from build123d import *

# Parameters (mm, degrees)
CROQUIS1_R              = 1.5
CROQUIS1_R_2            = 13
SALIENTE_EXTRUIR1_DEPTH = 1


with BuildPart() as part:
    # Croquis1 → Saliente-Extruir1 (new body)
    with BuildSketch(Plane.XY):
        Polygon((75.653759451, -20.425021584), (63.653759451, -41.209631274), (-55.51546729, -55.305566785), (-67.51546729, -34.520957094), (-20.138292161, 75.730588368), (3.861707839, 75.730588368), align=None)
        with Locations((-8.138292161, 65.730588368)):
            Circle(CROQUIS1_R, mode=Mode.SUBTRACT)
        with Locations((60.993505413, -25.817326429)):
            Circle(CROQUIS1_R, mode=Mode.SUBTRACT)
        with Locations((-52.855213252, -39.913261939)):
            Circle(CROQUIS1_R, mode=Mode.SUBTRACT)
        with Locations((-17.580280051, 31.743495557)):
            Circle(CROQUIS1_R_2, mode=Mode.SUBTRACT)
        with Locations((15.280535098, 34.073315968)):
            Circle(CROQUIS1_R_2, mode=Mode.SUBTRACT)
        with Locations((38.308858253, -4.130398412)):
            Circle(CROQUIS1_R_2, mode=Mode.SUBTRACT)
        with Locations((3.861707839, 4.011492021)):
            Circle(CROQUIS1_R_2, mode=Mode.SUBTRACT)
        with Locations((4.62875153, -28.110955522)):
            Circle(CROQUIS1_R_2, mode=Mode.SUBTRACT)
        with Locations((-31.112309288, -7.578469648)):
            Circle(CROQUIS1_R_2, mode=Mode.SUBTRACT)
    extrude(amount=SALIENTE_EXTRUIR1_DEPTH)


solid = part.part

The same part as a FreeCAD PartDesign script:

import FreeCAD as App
import Part
import Sketcher
from FreeCAD import Vector
Q = App.Units.Quantity

doc = App.newDocument("Part")
body = doc.addObject("PartDesign::Body", "Body")

sketch1 = body.newObject("Sketcher::SketchObject", "Sketch")
sketch1.AttachmentSupport = (doc.getObject("XY_Plane"), [""])
sketch1.MapMode = "FlatFace"
sketch1.addGeometry([
    Part.LineSegment(Vector(63.7, -41.2, 0), Vector(75.7, -20.4, 0)),
    Part.LineSegment(Vector(75.7, -20.4, 0), Vector(3.9, 75.7, 0)),
    Part.LineSegment(Vector(3.9, 75.7, 0), Vector(-20.1, 75.7, 0)),
    Part.LineSegment(Vector(-20.1, 75.7, 0), Vector(-67.5, -34.5, 0)),
    Part.LineSegment(Vector(-67.5, -34.5, 0), Vector(-55.5, -55.3, 0)),
    Part.LineSegment(Vector(-55.5, -55.3, 0), Vector(63.7, -41.2, 0)),
    Part.Circle(Vector(61, -25.8, 0), Vector(0, 0, 1), 1.5),
    Part.Circle(Vector(4.6, -28.1, 0), Vector(0, 0, 1), 13),
    Part.Circle(Vector(38.3, -4.1, 0), Vector(0, 0, 1), 13),
    Part.Circle(Vector(-52.9, -39.9, 0), Vector(0, 0, 1), 1.5),
    Part.Circle(Vector(3.9, 4, 0), Vector(0, 0, 1), 13),
    Part.Circle(Vector(-31.1, -7.6, 0), Vector(0, 0, 1), 13),
    Part.Circle(Vector(15.3, 34.1, 0), Vector(0, 0, 1), 13),
    Part.Circle(Vector(-17.6, 31.7, 0), Vector(0, 0, 1), 13),
    Part.Circle(Vector(-8.1, 65.7, 0), Vector(0, 0, 1), 1.5),
], False)
sketch1.addConstraint([
    Sketcher.Constraint("Coincident", 0, 2, 1, 1),
    Sketcher.Constraint("Coincident", 1, 2, 2, 1),
    Sketcher.Constraint("Coincident", 2, 2, 3, 1),
    Sketcher.Constraint("Coincident", 3, 2, 4, 1),
    Sketcher.Constraint("Coincident", 4, 2, 5, 1),
    Sketcher.Constraint("Coincident", 5, 2, 0, 1),
    Sketcher.Constraint("Horizontal", 2),
    Sketcher.Constraint("Equal", 7, 8),
    Sketcher.Constraint("Equal", 6, 9),
    Sketcher.Constraint("Equal", 8, 10),
    Sketcher.Constraint("Equal", 10, 11),
    Sketcher.Constraint("Equal", 11, 12),
    Sketcher.Constraint("Equal", 12, 13),
    Sketcher.Constraint("Equal", 9, 14),
    Sketcher.Constraint("Vertical", 10, 3, 1, 2),
    Sketcher.Constraint("Equal", 1, 3),
    Sketcher.Constraint("Equal", 0, 4),
    Sketcher.Constraint("Equal", 3, 5),
    Sketcher.Constraint("Diameter", 6, Q("3 mm")),
    Sketcher.Constraint("Diameter", 7, Q("26 mm")),
    Sketcher.Constraint("DistanceX", 2, 2, 2, 1, Q("24 mm")),
    Sketcher.Constraint("Angle", 0, Q("60 deg")),
    Sketcher.Constraint("Angle", 4, Q("-60 deg")),
    Sketcher.Constraint("Distance", 0, Q("24 mm")),
    Sketcher.Constraint("Distance", 1, Q("120 mm")),
    Sketcher.Constraint("DistanceX", 14, 3, 10, 3, Q("12 mm")),
    Sketcher.Constraint("DistanceY", 14, 3, 1, 2, Q("10 mm")),
    Sketcher.Constraint("DistanceY", 3, 2, 7, 3, Q("6.410002 mm")),
    Sketcher.Constraint("DistanceY", 8, 3, -1, 1, Q("4.130398 mm")),
    Sketcher.Constraint("DistanceX", 8, 3, 0, 2, Q("37.344901 mm")),
    Sketcher.Constraint("DistanceX", -1, 1, 7, 3, Q("4.628752 mm")),
    Sketcher.Constraint("DistanceX", -1, 1, 8, 3, Q("38.308858 mm")),
    Sketcher.Constraint("DistanceY", 9, 3, -1, 1, Q("39.913262 mm")),
    Sketcher.Constraint("DistanceX", 11, 3, -1, 1, Q("31.112309 mm")),
    Sketcher.Constraint("DistanceY", 11, 3, -1, 1, Q("7.57847 mm")),
    Sketcher.Constraint("DistanceX", 13, 3, -1, 1, Q("17.58028 mm")),
    Sketcher.Constraint("DistanceY", -1, 1, 14, 3, Q("65.730588 mm")),
    Sketcher.Constraint("DistanceY", 0, 2, -1, 1, Q("20.425022 mm")),
    Sketcher.Constraint("DistanceY", 7, 3, 6, 3, Q("2.293629 mm")),
    Sketcher.Constraint("DistanceX", 9, 3, 8, 3, Q("91.164072 mm")),
    Sketcher.Constraint("DistanceX", 9, 3, 6, 3, Q("113.848719 mm")),
    Sketcher.Constraint("DistanceY", 8, 3, 10, 3, Q("8.14189 mm")),
    Sketcher.Constraint("DistanceY", 7, 3, 12, 3, Q("62.184271 mm")),
    Sketcher.Constraint("DistanceX", 12, 3, 6, 3, Q("45.71297 mm")),
    Sketcher.Constraint("DistanceY", 13, 3, 12, 3, Q("2.32982 mm")),
])
pad1 = body.newObject("PartDesign::Pad", "Pad")
pad1.Profile = sketch1
pad1.Length = 1

doc.recompute()
